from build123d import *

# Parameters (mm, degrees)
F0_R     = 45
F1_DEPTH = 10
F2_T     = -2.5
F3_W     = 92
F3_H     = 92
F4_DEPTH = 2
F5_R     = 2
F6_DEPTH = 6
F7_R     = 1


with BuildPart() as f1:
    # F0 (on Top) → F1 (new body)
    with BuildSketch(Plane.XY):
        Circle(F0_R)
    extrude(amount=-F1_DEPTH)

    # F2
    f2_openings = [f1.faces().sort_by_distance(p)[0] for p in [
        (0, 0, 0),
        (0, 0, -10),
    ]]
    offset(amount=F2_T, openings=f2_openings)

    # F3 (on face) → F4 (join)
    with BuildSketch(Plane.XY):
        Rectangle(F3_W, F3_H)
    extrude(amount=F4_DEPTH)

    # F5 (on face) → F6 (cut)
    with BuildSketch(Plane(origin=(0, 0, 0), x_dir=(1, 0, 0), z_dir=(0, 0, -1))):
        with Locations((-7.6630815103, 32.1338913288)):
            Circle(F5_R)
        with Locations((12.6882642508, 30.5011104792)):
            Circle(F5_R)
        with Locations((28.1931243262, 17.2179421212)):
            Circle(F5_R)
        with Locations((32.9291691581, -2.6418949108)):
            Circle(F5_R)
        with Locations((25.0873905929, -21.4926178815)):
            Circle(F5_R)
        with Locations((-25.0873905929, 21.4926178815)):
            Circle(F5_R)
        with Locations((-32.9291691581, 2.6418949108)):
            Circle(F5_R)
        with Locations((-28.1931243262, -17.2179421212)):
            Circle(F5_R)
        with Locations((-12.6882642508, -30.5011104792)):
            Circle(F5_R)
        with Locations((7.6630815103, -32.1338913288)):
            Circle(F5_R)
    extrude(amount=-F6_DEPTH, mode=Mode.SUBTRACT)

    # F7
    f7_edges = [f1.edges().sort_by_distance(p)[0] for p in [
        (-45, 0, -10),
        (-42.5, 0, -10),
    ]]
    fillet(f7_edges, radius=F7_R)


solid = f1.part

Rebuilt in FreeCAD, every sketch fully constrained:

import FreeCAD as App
import Part
import Sketcher
Q = App.Units.Quantity


def edges_at(feature, points):
    """Names of the edges that pass closest to the given points."""
    edges = feature.Shape.Edges
    near = lambda p: min(range(len(edges)), key=lambda i: edges[i].distToShape(Part.Vertex(*p))[0])
    return sorted({f"Edge{near(p) + 1}" for p in points})


def faces_at(feature, points):
    """Names of the faces that lie closest to the given points."""
    faces = feature.Shape.Faces
    near = lambda p: min(range(len(faces)), key=lambda i: faces[i].distToShape(Part.Vertex(*p))[0])
    return sorted({f"Face{near(p) + 1}" for p in points})

doc = App.newDocument("Part")
body = doc.addObject("PartDesign::Body", "Body")

sketch1 = body.newObject("Sketcher::SketchObject", "Sketch")
sketch1.AttachmentSupport = (doc.getObject("XY_Plane"), [""])
sketch1.MapMode = "FlatFace"
sketch1.addGeometry(Part.Circle(App.Vector(0, 0, 0), App.Vector(0, 0, 1), 45), False)
sketch1.addConstraint([
    Sketcher.Constraint("Coincident", 0, 3, -1, 1),
    Sketcher.Constraint("Diameter", 0, Q("90 mm")),
])
pad1 = body.newObject("PartDesign::Pad", "Pad")
pad1.Profile = sketch1
pad1.Length = 10
pad1.Reversed = True
doc.recompute()

thickness = body.newObject("PartDesign::Thickness", "Thickness")
thickness.Base = (pad1, faces_at(pad1, [(0, 0, 0), (0, 0, -10)]))
thickness.Value = 2.5
thickness.Reversed = True
thickness.Join = "Arc"

sketch2 = body.newObject("Sketcher::SketchObject", "Sketch001")
sketch2.AttachmentSupport = (doc.getObject("XY_Plane"), [""])
sketch2.MapMode = "FlatFace"
sketch2.addGeometry([
    Part.LineSegment(App.Vector(-46, 46, 0), App.Vector(-46, -46, 0)),
    Part.LineSegment(App.Vector(-46, -46, 0), App.Vector(46, -46, 0)),
    Part.LineSegment(App.Vector(46, -46, 0), App.Vector(46, 46, 0)),
    Part.LineSegment(App.Vector(46, 46, 0), App.Vector(-46, 46, 0)),
], False)
sketch2.addConstraint([
    Sketcher.Constraint("Coincident", 0, 2, 1, 1),
    Sketcher.Constraint("Coincident", 1, 2, 2, 1),
    Sketcher.Constraint("Coincident", 2, 2, 3, 1),
    Sketcher.Constraint("Coincident", 3, 2, 0, 1),
    Sketcher.Constraint("Vertical", 0),
    Sketcher.Constraint("Horizontal", 1),
    Sketcher.Constraint("Vertical", 2),
    Sketcher.Constraint("Horizontal", 3),
    Sketcher.Constraint("Symmetric", 0, 2, 2, 2, -1, 1),
    Sketcher.Constraint("Equal", 3, 0),
    Sketcher.Constraint("DistanceX", 1, 1, 1, 2, Q("92 mm")),
])
pad2 = body.newObject("PartDesign::Pad", "Pad001")
pad2.Profile = sketch2
pad2.Length = 2

sketch3 = body.newObject("Sketcher::SketchObject", "Sketch002")
sketch3.AttachmentSupport = (doc.getObject("XY_Plane"), [""])
sketch3.MapMode = "FlatFace"
sketch3.addGeometry([
    Part.Circle(App.Vector(-7.7, -32.1, 0), App.Vector(0, 0, 1), 2),
    Part.Circle(App.Vector(12.7, -30.5, 0), App.Vector(0, 0, 1), 2),
    Part.Circle(App.Vector(28.2, -17.2, 0), App.Vector(0, 0, 1), 2),
    Part.Circle(App.Vector(32.9, 2.6, 0), App.Vector(0, 0, 1), 2),
    Part.Circle(App.Vector(25.1, 21.5, 0), App.Vector(0, 0, 1), 2),
    Part.Circle(App.Vector(-25.1, -21.5, 0), App.Vector(0, 0, 1), 2),
    Part.Circle(App.Vector(-32.9, -2.6, 0), App.Vector(0, 0, 1), 2),
    Part.Circle(App.Vector(-28.2, 17.2, 0), App.Vector(0, 0, 1), 2),
    Part.Circle(App.Vector(-12.7, 30.5, 0), App.Vector(0, 0, 1), 2),
    Part.Circle(App.Vector(7.7, 32.1, 0), App.Vector(0, 0, 1), 2),
], False)
sketch3.addConstraint([
    Sketcher.Constraint("Equal", 0, 1),
    Sketcher.Constraint("Equal", 1, 2),
    Sketcher.Constraint("Equal", 2, 3),
    Sketcher.Constraint("Equal", 3, 4),
    Sketcher.Constraint("Equal", 4, 5),
    Sketcher.Constraint("Equal", 5, 6),
    Sketcher.Constraint("Equal", 6, 7),
    Sketcher.Constraint("Equal", 7, 8),
    Sketcher.Constraint("Equal", 8, 9),
    Sketcher.Constraint("Symmetric", 4, 3, 5, 3, -1, 1),
    Sketcher.Constraint("Symmetric", 3, 3, 6, 3, -1, 1),
    Sketcher.Constraint("Symmetric", 2, 3, 7, 3, -1, 1),
    Sketcher.Constraint("Symmetric", 1, 3, 8, 3, -1, 1),
    Sketcher.Constraint("Symmetric", 0, 3, 9, 3, -1, 1),
    Sketcher.Constraint("Diameter", 0, Q("4 mm")),
    Sketcher.Constraint("DistanceX", 0, 3, -1, 1, Q("7.663082 mm")),
    Sketcher.Constraint("DistanceY", 0, 3, -1, 1, Q("32.133891 mm")),
    Sketcher.Constraint("DistanceY", 1, 3, -1, 1, Q("30.50111 mm")),
    Sketcher.Constraint("DistanceX", -1, 1, 3, 3, Q("32.929169 mm")),
    Sketcher.Constraint("DistanceX", -1, 1, 4, 3, Q("25.087391 mm")),
    Sketcher.Constraint("DistanceX", 1, 3, 2, 3, Q("15.50486 mm")),
    Sketcher.Constraint("DistanceY", 1, 3, 2, 3, Q("13.283168 mm")),
    Sketcher.Constraint("DistanceY", 2, 3, 4, 3, Q("38.71056 mm")),
    Sketcher.Constraint("DistanceX", -1, 1, 1, 3, Q("12.688264 mm")),
    Sketcher.Constraint("DistanceY", -1, 1, 3, 3, Q("2.641895 mm")),
])
pocket1 = body.newObject("PartDesign::Pocket", "Pocket")
pocket1.Profile = sketch3
pocket1.Length = 6
pocket1.Reversed = True
doc.recompute()

fillet = body.newObject("PartDesign::Fillet", "Fillet")
fillet.Base = (pocket1, edges_at(pocket1, [(-45, 0, -10), (-42.5, 0, -10)]))
fillet.Radius = 1

doc.recompute()
